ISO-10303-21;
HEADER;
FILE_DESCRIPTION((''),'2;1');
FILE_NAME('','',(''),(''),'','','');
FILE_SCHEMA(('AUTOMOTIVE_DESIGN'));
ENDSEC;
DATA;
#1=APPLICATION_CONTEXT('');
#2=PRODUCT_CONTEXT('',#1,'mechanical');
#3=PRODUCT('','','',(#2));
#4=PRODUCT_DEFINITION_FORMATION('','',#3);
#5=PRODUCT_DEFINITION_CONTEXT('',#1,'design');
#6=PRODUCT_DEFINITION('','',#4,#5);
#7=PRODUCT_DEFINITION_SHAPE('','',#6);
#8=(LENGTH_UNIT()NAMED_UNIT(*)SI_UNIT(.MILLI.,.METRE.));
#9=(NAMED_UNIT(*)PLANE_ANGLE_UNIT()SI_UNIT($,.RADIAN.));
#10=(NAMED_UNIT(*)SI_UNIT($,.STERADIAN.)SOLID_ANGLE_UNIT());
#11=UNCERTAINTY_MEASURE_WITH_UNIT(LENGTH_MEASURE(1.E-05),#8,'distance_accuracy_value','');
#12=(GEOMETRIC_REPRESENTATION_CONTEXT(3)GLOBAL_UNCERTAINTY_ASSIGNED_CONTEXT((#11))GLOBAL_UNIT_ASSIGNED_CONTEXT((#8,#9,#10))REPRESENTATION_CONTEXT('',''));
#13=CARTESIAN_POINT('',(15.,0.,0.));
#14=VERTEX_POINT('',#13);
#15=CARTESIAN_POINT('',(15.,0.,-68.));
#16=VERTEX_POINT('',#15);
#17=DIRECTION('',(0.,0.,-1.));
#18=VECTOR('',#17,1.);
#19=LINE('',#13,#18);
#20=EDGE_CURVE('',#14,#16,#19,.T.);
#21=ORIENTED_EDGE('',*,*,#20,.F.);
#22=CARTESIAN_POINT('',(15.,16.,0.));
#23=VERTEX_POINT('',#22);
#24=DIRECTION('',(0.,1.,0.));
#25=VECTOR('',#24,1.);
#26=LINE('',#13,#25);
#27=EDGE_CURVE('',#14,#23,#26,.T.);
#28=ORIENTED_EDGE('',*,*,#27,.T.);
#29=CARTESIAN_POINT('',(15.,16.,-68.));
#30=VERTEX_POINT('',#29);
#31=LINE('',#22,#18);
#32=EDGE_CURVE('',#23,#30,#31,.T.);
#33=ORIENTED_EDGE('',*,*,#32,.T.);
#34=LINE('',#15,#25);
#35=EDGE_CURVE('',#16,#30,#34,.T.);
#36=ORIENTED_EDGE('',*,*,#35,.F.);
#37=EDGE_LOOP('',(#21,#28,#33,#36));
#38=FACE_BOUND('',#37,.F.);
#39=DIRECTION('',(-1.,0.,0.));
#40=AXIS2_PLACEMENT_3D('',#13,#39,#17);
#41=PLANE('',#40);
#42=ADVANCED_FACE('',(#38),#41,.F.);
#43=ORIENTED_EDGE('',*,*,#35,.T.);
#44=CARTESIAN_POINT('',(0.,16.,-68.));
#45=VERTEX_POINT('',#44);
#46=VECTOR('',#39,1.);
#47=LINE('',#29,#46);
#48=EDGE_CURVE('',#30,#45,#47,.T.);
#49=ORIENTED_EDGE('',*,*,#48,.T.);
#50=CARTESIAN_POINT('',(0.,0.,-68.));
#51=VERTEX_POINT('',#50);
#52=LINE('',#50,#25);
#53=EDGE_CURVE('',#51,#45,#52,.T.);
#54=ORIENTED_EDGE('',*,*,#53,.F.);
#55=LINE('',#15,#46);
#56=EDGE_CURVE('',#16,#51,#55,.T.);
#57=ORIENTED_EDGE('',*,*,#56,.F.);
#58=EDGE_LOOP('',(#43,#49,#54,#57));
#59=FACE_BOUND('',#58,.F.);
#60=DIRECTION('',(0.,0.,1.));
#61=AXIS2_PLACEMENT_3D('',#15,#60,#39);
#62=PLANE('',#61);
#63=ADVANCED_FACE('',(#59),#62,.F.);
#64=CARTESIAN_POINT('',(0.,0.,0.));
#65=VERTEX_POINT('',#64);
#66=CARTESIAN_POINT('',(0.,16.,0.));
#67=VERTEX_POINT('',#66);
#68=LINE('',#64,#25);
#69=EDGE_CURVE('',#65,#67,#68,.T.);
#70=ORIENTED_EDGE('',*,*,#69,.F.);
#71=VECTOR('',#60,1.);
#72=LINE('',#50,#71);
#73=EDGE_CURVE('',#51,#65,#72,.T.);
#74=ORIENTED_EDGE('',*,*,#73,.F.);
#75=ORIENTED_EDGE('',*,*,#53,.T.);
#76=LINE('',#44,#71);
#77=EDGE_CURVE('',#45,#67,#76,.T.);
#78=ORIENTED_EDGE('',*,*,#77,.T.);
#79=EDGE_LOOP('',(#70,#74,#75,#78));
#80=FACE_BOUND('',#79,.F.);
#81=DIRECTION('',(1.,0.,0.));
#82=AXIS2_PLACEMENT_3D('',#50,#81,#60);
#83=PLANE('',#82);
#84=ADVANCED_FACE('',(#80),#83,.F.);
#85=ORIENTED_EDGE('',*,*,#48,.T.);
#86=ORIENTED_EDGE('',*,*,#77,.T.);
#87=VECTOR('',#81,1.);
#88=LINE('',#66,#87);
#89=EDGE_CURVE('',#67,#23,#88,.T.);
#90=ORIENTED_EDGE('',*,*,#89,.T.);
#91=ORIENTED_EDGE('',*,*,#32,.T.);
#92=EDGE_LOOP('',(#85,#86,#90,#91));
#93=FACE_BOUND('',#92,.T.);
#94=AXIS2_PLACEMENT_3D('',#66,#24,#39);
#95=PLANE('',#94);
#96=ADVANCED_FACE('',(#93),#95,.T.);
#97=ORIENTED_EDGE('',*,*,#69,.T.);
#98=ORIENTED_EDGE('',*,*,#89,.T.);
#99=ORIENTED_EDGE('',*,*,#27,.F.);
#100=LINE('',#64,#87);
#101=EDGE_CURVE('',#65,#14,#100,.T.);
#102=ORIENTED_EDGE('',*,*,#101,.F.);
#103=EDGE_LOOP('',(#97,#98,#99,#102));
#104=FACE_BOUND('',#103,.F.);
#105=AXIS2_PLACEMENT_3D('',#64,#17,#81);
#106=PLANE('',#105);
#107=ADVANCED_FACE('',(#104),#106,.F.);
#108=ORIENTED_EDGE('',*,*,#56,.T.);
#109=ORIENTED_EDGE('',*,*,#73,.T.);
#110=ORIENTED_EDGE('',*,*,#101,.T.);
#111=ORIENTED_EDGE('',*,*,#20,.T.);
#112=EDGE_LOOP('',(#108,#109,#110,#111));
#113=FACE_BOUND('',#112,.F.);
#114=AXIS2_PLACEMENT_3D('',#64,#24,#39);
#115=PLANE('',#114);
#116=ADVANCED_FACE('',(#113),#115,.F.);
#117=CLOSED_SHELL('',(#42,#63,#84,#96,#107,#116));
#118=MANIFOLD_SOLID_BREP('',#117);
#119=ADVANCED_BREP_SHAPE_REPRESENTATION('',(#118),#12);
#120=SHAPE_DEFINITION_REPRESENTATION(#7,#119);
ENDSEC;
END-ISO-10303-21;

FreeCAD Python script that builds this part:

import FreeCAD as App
import Part
import Sketcher
from FreeCAD import Vector


def add_polygon(sketch, points):
    """Adds a closed chain of lines whose ends are joined by coincident constraints."""
    first, n = sketch.GeometryCount, len(points)
    for a, b in zip(points, points[1:] + points[:1]):
        sketch.addGeometry(Part.LineSegment(App.Vector(*a, 0), App.Vector(*b, 0)), False)
    for i in range(n):
        sketch.addConstraint(Sketcher.Constraint("Coincident", first + i, 2, first + (i + 1) % n, 1))

doc = App.newDocument("Part")
params = doc.addObject("Spreadsheet::Sheet", "Params")
for row, (alias, value) in enumerate([
    ("sketch1_width", "15 mm"),
    ("sketch1_height", "68 mm"),
    ("pad1_length", "16 mm"),
], start=1):
    params.set(f"A{row}", alias)
    params.set(f"B{row}", "=" + value)
    params.setAlias(f"B{row}", alias)

body = doc.addObject("PartDesign::Body", "Body")

# Sketch on XZ plane
sketch1 = body.newObject("Sketcher::SketchObject", "Sketch")
sketch1.AttachmentSupport = (doc.getObject("XZ_Plane"), [""])
sketch1.MapMode = "FlatFace"
add_polygon(sketch1, [(0, -68), (0, 0), (15, 0), (15, -68)])  # lines 0-3
sketch1.addConstraint(Sketcher.Constraint("Vertical", 0))
sketch1.addConstraint(Sketcher.Constraint("Horizontal", 1))
sketch1.addConstraint(Sketcher.Constraint("Vertical", 2))
sketch1.addConstraint(Sketcher.Constraint("Horizontal", 3))
sketch1.addConstraint(Sketcher.Constraint("Coincident", 0, 2, -1, 1))
sketch1.addConstraint(Sketcher.Constraint("DistanceX", 1, 1, 1, 2, 15.0))
sketch1.addConstraint(Sketcher.Constraint("DistanceY", 0, 1, 0, 2, 68.0))
sketch1.setExpression("Constraints[9]", "Params.sketch1_width")
sketch1.setExpression("Constraints[10]", "Params.sketch1_height")
pad1 = body.newObject("PartDesign::Pad", "Pad")
pad1.Profile = sketch1
pad1.setExpression("Length", "Params.pad1_length")
pad1.Reversed = True

doc.recompute()
